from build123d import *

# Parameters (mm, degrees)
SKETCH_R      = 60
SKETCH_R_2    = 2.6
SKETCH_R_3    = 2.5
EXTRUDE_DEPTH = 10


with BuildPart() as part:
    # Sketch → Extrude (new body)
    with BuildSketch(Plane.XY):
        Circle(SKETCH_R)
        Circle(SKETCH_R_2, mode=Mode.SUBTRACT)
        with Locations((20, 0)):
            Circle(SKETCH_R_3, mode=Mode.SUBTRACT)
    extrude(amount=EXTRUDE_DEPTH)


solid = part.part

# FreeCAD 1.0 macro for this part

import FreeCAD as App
import Part
import Sketcher
Q = App.Units.Quantity

doc = App.newDocument("Part")
body = doc.addObject("PartDesign::Body", "Body")

# Sketch on XY plane
sketch1 = body.newObject("Sketcher::SketchObject", "Sketch")
sketch1.AttachmentSupport = (doc.getObject("XY_Plane"), [""])
sketch1.MapMode = "FlatFace"
sketch1.addGeometry([
    Part.Circle(App.Vector(0, 0, 0), App.Vector(0, 0, 1), 60),
    Part.Circle(App.Vector(0, 0, 0), App.Vector(0, 0, 1), 2.6),
    Part.Circle(App.Vector(20, 0, 0), App.Vector(0, 0, 1), 2.5),
], False)
sketch1.addConstraint([
    Sketcher.Constraint("Coincident", 0, 3, -1, 1),
    Sketcher.Constraint("Coincident", 1, 3, -1, 1),
    Sketcher.Constraint("PointOnObject", 2, 3, -1),
    Sketcher.Constraint("Diameter", 0, Q("120 mm")),
    Sketcher.Constraint("Diameter", 2, Q("5 mm")),
    Sketcher.Constraint("Diameter", 1, Q("5.2 mm")),
    Sketcher.Constraint("DistanceX", -1, 1, 2, 3, Q("20 mm")),
])
pad1 = body.newObject("PartDesign::Pad", "Pad")
pad1.Profile = sketch1
pad1.Length = 10

doc.recompute()
